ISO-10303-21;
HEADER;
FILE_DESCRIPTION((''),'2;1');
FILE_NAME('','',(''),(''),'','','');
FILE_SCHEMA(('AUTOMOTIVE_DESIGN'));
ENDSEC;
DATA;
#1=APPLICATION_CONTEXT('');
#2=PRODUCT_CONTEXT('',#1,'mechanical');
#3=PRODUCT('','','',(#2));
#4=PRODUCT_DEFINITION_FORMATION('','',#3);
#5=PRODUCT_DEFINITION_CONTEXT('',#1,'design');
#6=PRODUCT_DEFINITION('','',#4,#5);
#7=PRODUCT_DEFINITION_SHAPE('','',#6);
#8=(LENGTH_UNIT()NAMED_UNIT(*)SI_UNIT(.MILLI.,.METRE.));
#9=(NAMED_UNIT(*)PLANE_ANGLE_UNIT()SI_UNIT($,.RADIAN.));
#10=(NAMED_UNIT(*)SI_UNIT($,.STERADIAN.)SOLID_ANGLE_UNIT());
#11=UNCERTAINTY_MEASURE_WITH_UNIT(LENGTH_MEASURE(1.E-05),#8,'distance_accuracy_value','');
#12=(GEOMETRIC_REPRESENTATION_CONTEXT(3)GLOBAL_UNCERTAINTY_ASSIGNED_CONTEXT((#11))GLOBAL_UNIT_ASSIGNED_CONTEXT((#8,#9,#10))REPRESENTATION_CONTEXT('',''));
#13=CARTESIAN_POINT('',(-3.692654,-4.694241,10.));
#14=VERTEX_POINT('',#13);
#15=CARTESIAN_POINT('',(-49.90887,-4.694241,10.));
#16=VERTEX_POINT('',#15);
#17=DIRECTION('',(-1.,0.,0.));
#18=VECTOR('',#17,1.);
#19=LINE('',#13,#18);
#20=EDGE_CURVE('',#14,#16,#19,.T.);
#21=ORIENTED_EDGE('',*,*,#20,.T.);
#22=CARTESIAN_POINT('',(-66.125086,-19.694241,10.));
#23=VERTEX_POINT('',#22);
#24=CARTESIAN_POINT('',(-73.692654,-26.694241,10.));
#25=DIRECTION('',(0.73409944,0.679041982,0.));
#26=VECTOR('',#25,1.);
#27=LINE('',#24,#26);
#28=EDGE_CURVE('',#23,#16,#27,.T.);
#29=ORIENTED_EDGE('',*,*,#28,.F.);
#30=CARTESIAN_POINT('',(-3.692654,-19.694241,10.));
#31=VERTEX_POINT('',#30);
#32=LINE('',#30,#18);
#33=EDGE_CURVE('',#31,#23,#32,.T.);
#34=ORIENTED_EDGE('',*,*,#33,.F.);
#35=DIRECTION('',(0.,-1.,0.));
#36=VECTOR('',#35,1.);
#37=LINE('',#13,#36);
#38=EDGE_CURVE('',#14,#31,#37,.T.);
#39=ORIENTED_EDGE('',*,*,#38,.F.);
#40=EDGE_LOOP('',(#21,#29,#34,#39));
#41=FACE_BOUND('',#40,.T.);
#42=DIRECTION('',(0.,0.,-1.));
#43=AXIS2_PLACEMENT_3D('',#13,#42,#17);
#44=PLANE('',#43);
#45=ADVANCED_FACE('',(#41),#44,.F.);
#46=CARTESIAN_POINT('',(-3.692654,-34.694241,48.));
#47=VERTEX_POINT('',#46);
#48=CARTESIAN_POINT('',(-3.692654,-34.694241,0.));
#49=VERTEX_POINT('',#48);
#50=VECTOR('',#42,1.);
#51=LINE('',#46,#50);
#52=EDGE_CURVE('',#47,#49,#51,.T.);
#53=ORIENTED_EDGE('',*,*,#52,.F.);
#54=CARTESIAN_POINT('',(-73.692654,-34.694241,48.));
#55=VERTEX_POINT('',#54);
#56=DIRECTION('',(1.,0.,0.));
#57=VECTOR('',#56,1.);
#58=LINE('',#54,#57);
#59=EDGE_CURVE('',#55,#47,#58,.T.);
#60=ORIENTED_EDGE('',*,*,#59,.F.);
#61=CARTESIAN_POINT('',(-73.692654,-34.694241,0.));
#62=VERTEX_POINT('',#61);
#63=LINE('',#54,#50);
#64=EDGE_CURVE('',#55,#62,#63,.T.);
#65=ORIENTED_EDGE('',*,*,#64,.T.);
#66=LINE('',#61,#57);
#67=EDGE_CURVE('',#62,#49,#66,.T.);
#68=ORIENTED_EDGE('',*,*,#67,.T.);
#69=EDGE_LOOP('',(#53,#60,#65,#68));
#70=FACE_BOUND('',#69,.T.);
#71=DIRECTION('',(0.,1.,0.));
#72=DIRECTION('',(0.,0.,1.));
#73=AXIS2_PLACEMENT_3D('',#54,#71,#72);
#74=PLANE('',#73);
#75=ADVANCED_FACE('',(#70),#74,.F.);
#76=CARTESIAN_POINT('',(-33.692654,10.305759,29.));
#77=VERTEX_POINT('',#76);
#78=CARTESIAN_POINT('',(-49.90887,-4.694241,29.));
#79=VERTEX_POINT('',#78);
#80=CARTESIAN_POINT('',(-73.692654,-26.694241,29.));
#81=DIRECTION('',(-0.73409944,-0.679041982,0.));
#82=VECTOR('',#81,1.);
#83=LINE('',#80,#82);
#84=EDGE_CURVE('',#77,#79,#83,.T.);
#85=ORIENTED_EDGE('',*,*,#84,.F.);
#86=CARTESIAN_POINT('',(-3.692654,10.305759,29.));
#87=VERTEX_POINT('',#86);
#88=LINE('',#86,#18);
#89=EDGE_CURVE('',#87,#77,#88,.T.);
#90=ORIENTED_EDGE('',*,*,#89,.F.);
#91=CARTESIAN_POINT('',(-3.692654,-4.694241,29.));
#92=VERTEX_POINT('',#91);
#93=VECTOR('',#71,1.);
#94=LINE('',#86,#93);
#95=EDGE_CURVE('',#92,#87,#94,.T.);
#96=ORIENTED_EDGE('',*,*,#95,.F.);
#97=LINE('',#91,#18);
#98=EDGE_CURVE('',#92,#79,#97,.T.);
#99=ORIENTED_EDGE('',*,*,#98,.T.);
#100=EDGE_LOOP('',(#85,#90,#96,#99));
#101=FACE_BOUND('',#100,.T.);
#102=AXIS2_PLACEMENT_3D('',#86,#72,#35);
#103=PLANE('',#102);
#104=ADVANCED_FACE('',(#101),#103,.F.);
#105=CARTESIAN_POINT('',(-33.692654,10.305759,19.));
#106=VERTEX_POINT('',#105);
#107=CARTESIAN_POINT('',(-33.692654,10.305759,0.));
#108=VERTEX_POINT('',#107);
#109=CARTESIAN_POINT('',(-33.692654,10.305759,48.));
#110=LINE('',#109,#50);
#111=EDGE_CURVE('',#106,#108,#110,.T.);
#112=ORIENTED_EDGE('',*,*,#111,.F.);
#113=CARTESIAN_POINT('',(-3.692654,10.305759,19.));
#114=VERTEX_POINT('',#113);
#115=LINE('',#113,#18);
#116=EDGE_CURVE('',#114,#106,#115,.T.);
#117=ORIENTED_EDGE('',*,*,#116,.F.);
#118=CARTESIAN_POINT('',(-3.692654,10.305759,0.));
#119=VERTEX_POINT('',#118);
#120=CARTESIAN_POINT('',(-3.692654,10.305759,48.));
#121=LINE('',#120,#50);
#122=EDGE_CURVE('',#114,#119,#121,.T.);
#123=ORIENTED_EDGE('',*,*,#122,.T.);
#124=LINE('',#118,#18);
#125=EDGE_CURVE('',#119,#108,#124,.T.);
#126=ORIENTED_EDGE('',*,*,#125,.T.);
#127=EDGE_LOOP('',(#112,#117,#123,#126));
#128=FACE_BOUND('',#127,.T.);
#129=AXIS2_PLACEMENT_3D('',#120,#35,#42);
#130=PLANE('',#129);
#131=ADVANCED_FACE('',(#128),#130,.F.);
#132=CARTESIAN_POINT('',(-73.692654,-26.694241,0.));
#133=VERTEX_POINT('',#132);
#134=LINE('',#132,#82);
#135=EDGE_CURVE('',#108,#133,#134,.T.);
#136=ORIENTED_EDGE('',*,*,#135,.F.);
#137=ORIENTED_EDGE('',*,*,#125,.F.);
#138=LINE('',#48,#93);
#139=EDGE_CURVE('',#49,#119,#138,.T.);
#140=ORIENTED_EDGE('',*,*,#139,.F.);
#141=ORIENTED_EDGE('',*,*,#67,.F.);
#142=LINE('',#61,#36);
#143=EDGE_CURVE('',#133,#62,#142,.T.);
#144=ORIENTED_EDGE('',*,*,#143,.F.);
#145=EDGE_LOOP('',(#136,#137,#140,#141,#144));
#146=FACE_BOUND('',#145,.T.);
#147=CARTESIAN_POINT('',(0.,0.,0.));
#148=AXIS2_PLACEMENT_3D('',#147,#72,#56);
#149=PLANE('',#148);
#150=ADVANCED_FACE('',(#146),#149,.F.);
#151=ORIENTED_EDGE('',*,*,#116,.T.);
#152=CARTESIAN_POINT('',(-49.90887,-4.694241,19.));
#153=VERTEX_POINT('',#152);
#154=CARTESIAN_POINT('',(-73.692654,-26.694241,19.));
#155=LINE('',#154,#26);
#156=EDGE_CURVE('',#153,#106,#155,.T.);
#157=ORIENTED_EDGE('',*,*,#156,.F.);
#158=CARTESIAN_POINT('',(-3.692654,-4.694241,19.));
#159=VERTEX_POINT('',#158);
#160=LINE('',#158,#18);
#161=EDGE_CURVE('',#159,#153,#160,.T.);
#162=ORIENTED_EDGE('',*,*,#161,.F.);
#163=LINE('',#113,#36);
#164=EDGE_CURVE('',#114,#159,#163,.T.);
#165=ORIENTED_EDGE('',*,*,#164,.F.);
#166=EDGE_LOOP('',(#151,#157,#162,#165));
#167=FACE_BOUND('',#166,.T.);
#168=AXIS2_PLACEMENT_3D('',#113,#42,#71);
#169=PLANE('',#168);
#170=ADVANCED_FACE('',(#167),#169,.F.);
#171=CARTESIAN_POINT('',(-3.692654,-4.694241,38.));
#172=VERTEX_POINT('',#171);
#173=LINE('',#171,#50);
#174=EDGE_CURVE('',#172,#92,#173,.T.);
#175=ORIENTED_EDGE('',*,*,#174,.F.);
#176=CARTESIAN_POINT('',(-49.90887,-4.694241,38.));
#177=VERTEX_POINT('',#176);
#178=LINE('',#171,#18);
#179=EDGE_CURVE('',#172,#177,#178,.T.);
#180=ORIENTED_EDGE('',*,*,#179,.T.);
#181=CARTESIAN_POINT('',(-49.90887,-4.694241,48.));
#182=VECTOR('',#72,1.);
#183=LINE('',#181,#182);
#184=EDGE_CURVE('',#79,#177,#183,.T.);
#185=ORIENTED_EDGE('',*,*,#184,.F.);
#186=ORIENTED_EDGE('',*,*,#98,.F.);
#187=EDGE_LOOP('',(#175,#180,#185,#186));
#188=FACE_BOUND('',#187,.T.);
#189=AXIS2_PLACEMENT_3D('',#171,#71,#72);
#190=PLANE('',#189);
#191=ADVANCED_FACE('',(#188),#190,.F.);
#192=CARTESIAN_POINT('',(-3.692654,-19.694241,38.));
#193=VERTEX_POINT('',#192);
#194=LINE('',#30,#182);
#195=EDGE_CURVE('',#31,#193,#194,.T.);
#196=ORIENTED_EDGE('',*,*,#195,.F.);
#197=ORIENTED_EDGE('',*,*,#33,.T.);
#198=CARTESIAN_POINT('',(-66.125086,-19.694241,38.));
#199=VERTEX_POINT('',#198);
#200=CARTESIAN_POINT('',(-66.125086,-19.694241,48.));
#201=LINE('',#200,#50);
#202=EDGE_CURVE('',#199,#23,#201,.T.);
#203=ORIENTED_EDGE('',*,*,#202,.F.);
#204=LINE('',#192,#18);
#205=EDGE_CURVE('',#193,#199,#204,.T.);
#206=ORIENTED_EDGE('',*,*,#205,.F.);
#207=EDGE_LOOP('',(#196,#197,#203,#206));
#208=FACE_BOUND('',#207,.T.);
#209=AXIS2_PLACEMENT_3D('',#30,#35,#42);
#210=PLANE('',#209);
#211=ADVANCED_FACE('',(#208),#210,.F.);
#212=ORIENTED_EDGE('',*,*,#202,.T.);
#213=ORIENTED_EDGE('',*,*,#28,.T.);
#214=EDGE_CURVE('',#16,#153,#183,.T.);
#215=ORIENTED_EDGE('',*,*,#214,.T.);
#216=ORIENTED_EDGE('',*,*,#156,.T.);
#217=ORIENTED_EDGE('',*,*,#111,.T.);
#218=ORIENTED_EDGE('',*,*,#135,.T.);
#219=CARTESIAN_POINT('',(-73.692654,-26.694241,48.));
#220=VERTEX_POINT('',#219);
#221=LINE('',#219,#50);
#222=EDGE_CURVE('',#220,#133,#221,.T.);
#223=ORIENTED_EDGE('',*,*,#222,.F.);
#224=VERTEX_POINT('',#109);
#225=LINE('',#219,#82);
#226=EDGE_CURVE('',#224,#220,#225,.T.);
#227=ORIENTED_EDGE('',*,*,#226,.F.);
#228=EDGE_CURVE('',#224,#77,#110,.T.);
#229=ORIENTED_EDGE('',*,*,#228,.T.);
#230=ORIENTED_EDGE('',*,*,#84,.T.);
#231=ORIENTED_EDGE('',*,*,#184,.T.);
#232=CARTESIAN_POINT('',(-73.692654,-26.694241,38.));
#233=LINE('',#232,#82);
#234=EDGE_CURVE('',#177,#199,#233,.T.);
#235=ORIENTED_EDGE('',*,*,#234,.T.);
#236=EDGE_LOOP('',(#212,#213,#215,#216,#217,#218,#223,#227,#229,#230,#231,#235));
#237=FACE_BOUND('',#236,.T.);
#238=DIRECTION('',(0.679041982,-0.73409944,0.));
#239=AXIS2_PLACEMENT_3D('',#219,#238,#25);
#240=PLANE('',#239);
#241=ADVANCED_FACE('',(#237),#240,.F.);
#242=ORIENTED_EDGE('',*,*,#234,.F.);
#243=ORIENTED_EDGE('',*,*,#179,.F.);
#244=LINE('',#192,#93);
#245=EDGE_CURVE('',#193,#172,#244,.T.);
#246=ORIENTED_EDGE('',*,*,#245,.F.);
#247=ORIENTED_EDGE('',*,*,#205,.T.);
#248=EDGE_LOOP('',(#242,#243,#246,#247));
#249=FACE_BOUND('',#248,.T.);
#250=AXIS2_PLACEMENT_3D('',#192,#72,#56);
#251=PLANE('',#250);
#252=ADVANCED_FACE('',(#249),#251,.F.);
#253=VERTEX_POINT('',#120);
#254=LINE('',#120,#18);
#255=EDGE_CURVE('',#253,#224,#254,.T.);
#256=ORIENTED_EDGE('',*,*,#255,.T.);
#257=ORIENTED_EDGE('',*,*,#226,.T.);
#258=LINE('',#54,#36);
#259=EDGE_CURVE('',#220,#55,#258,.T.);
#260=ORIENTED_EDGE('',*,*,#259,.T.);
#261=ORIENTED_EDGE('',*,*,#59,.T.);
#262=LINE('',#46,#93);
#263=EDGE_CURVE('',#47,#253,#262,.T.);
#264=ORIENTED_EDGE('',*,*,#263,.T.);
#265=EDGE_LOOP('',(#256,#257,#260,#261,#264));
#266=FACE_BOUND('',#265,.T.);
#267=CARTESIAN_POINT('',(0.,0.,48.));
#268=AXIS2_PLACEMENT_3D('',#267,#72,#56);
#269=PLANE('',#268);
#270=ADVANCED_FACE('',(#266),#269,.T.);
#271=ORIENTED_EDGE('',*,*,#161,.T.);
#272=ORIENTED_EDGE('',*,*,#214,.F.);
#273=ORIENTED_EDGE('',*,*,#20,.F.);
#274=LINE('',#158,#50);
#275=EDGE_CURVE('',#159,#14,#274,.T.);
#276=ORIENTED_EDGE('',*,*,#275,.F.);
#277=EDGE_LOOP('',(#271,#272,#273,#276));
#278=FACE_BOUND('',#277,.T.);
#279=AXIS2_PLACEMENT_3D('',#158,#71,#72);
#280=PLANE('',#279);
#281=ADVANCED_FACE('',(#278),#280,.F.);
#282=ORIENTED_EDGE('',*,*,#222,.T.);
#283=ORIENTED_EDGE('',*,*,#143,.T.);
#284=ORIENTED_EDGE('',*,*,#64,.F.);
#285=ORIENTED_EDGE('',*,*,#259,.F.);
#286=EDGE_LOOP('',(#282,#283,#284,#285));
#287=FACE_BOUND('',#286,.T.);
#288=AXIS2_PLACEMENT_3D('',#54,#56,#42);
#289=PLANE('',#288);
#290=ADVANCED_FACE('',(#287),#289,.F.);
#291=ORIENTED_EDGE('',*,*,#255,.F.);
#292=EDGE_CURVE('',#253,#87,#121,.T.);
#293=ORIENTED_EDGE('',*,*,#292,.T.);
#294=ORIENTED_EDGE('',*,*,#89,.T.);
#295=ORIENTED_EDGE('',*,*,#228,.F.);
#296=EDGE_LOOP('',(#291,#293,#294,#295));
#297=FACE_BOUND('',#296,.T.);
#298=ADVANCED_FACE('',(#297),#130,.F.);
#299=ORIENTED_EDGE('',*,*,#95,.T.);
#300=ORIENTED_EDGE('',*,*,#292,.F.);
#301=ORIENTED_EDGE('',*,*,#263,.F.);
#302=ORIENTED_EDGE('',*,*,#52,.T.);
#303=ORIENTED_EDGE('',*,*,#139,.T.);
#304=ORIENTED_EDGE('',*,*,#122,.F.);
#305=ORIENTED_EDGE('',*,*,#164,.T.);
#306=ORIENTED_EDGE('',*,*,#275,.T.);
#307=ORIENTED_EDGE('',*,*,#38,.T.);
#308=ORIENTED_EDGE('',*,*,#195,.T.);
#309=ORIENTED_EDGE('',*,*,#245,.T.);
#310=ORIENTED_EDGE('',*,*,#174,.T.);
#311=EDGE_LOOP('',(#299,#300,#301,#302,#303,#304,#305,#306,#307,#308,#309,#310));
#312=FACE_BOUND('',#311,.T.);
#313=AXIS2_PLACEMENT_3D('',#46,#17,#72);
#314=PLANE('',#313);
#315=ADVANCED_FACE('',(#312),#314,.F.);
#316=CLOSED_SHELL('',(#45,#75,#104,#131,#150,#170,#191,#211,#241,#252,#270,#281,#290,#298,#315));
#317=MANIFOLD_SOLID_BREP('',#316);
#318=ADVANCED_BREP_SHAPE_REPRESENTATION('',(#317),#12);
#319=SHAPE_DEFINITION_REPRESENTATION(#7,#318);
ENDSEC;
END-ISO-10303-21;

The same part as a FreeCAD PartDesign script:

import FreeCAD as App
import Part
import Sketcher
from FreeCAD import Vector

doc = App.newDocument("Part")
body = doc.addObject("PartDesign::Body", "Body")

# Sketch on XY plane
sketch1 = doc.addObject("Sketcher::SketchObject", "Sketch")
body.addObject(sketch1)
sketch1.AttachmentSupport = (doc.XY_Plane, [""])
sketch1.MapMode = "FlatFace"
sketch1.addGeometry(Part.LineSegment(Vector(-73.692654, -34.694241, 0), Vector(-3.692654, -34.694241, 0)), False)
sketch1.addGeometry(Part.LineSegment(Vector(-3.692654, -34.694241, 0), Vector(-3.692654, 10.305759, 0)), False)
sketch1.addGeometry(Part.LineSegment(Vector(-3.692654, 10.305759, 0), Vector(-33.692654, 10.305759, 0)), False)
sketch1.addGeometry(Part.LineSegment(Vector(-33.692654, 10.305759, 0), Vector(-73.692654, -26.694241, 0)), False)
sketch1.addGeometry(Part.LineSegment(Vector(-73.692654, -26.694241, 0), Vector(-73.692654, -34.694241, 0)), False)
sketch1.addConstraint(Sketcher.Constraint("Coincident", 0, 2, 1, 1))
sketch1.addConstraint(Sketcher.Constraint("Coincident", 1, 2, 2, 1))
sketch1.addConstraint(Sketcher.Constraint("Coincident", 2, 2, 3, 1))
sketch1.addConstraint(Sketcher.Constraint("Coincident", 3, 2, 4, 1))
sketch1.addConstraint(Sketcher.Constraint("Coincident", 4, 2, 0, 1))
sketch1.addConstraint(Sketcher.Constraint("Horizontal", 0))
sketch1.addConstraint(Sketcher.Constraint("Vertical", 1))
sketch1.addConstraint(Sketcher.Constraint("Horizontal", 2))
sketch1.addConstraint(Sketcher.Constraint("Vertical", 4))
sketch1.addConstraint(Sketcher.Constraint("DistanceX", 0, 1, 0, 2, 70.0))
sketch1.addConstraint(Sketcher.Constraint("DistanceX", 2, 2, 2, 1, 30.0))
sketch1.addConstraint(Sketcher.Constraint("DistanceY", 1, 1, 1, 2, 45.0))
sketch1.addConstraint(Sketcher.Constraint("DistanceY", 4, 2, 4, 1, 8.0))
sketch1.addConstraint(Sketcher.Constraint("DistanceY", 0, 2, -1, 1, 34.694241))
sketch1.addConstraint(Sketcher.Constraint("DistanceX", 0, 2, -1, 1, 3.692654))
pad1 = doc.addObject("PartDesign::Pad", "Pad")
body.addObject(pad1)
pad1.Profile = sketch1
pad1.Length = 48

# Sketch on YZ plane
sketch2 = doc.addObject("Sketcher::SketchObject", "Sketch001")
body.addObject(sketch2)
sketch2.AttachmentSupport = (doc.YZ_Plane, [""])
sketch2.MapMode = "FlatFace"
sketch2.AttachmentOffset = App.Placement(Vector(0, 0, -73.692654), App.Rotation())
sketch2.addGeometry(Part.LineSegment(Vector(10.305759, 29, 0), Vector(10.305759, 19, 0)), False)
sketch2.addGeometry(Part.LineSegment(Vector(10.305759, 19, 0), Vector(-4.694241, 19, 0)), False)
sketch2.addGeometry(Part.LineSegment(Vector(-4.694241, 19, 0), Vector(-4.694241, 10, 0)), False)
sketch2.addGeometry(Part.LineSegment(Vector(-4.694241, 10, 0), Vector(-19.694241, 10, 0)), False)
sketch2.addGeometry(Part.LineSegment(Vector(-19.694241, 10, 0), Vector(-19.694241, 38, 0)), False)
sketch2.addGeometry(Part.LineSegment(Vector(-19.694241, 38, 0), Vector(-4.694241, 38, 0)), False)
sketch2.addGeometry(Part.LineSegment(Vector(-4.694241, 38, 0), Vector(-4.694241, 29, 0)), False)
sketch2.addGeometry(Part.LineSegment(Vector(-4.694241, 29, 0), Vector(10.305759, 29, 0)), False)
sketch2.addConstraint(Sketcher.Constraint("Coincident", 0, 2, 1, 1))
sketch2.addConstraint(Sketcher.Constraint("Coincident", 1, 2, 2, 1))
sketch2.addConstraint(Sketcher.Constraint("Coincident", 2, 2, 3, 1))
sketch2.addConstraint(Sketcher.Constraint("Coincident", 3, 2, 4, 1))
sketch2.addConstraint(Sketcher.Constraint("Coincident", 4, 2, 5, 1))
sketch2.addConstraint(Sketcher.Constraint("Coincident", 5, 2, 6, 1))
sketch2.addConstraint(Sketcher.Constraint("Coincident", 6, 2, 7, 1))
sketch2.addConstraint(Sketcher.Constraint("Coincident", 7, 2, 0, 1))
sketch2.addConstraint(Sketcher.Constraint("Vertical", 0))
sketch2.addConstraint(Sketcher.Constraint("Horizontal", 1))
sketch2.addConstraint(Sketcher.Constraint("Vertical", 2))
sketch2.addConstraint(Sketcher.Constraint("Horizontal", 3))
sketch2.addConstraint(Sketcher.Constraint("Vertical", 4))
sketch2.addConstraint(Sketcher.Constraint("Horizontal", 5))
sketch2.addConstraint(Sketcher.Constraint("Vertical", 6))
sketch2.addConstraint(Sketcher.Constraint("Horizontal", 7))
sketch2.addConstraint(Sketcher.Constraint("Vertical", 2, 2, 5, 2))
sketch2.addConstraint(Sketcher.Constraint("Equal", 1, 3))
sketch2.addConstraint(Sketcher.Constraint("Equal", 2, 6))
sketch2.addConstraint(Sketcher.Constraint("DistanceX", 1, 2, 1, 1, 15.0))
sketch2.addConstraint(Sketcher.Constraint("DistanceY", 0, 2, 0, 1, 10.0))
sketch2.addConstraint(Sketcher.Constraint("DistanceY", 2, 2, 2, 1, 9.0))
sketch2.addConstraint(Sketcher.Constraint("DistanceY", -1, 1, 0, 2, 19.0))
sketch2.addConstraint(Sketcher.Constraint("DistanceX", -1, 1, 0, 2, 10.305759))
pocket1 = doc.addObject("PartDesign::Pocket", "Pocket")
body.addObject(pocket1)
pocket1.Profile = sketch2
pocket1.Length = 70
pocket1.Reversed = True

doc.recompute()
